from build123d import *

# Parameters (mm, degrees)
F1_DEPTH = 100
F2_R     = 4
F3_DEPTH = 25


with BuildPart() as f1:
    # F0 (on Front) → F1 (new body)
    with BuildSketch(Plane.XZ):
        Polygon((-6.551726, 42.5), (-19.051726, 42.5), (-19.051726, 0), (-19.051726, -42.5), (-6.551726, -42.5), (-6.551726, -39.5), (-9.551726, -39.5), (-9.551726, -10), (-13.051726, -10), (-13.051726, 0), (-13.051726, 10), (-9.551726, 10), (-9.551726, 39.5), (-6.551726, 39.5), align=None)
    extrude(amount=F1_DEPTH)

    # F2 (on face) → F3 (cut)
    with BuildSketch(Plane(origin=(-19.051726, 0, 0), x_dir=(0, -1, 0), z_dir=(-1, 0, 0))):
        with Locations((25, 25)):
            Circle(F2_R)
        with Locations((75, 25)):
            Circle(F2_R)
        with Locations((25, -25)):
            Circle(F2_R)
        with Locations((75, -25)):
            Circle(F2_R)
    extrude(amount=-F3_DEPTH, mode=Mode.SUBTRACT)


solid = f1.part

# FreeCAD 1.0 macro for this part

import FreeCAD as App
import Part
import Sketcher

V = App.Vector
Q = App.Units.Quantity

doc = App.newDocument("Part")
params = doc.addObject("Spreadsheet::Sheet", "Params")
for row, (alias, value) in enumerate([
    ("sketch1_width", "3 mm"),
    ("sketch1_height", "85 mm"),
    ("sketch1_height2", "20 mm"),
    ("sketch1_width2", "12.5 mm"),
    ("sketch1_width3", "3.5 mm"),
    ("pad1_length", "100 mm"),
    ("sketch2_diameter", "8 mm"),
    ("pocket1_length", "25 mm"),
], start=1):
    params.set(f"A{row}", alias)
    params.set(f"B{row}", "=" + value)
    params.setAlias(f"B{row}", alias)

body = doc.addObject("PartDesign::Body", "Body")

sketch1 = body.newObject("Sketcher::SketchObject", "Sketch")
sketch1.AttachmentSupport = (doc.getObject("XZ_Plane"), [""])
sketch1.MapMode = "FlatFace"
sketch1.addGeometry([
    Part.LineSegment(V(-6.6, 42.5, 0), V(-19.1, 42.5, 0)),
    Part.LineSegment(V(-19.1, 42.5, 0), V(-19.1, -42.5, 0)),
    Part.LineSegment(V(-19.1, -42.5, 0), V(-6.6, -42.5, 0)),
    Part.LineSegment(V(-6.6, -42.5, 0), V(-6.6, -39.5, 0)),
    Part.LineSegment(V(-6.6, -39.5, 0), V(-9.6, -39.5, 0)),
    Part.LineSegment(V(-9.6, -39.5, 0), V(-9.6, -10, 0)),
    Part.LineSegment(V(-9.6, -10, 0), V(-13.1, -10, 0)),
    Part.LineSegment(V(-13.1, -10, 0), V(-13.1, 10, 0)),
    Part.LineSegment(V(-13.1, 10, 0), V(-9.6, 10, 0)),
    Part.LineSegment(V(-9.6, 10, 0), V(-9.6, 39.5, 0)),
    Part.LineSegment(V(-9.6, 39.5, 0), V(-6.6, 39.5, 0)),
    Part.LineSegment(V(-6.6, 39.5, 0), V(-6.6, 42.5, 0)),
], False)
sketch1.addConstraint([
    Sketcher.Constraint("Coincident", 0, 2, 1, 1),
    Sketcher.Constraint("Coincident", 1, 2, 2, 1),
    Sketcher.Constraint("Coincident", 2, 2, 3, 1),
    Sketcher.Constraint("Coincident", 3, 2, 4, 1),
    Sketcher.Constraint("Coincident", 4, 2, 5, 1),
    Sketcher.Constraint("Coincident", 5, 2, 6, 1),
    Sketcher.Constraint("Coincident", 6, 2, 7, 1),
    Sketcher.Constraint("Coincident", 7, 2, 8, 1),
    Sketcher.Constraint("Coincident", 8, 2, 9, 1),
    Sketcher.Constraint("Coincident", 9, 2, 10, 1),
    Sketcher.Constraint("Coincident", 10, 2, 11, 1),
    Sketcher.Constraint("Coincident", 11, 2, 0, 1),
    Sketcher.Constraint("Horizontal", 0),
    Sketcher.Constraint("Vertical", 1),
    Sketcher.Constraint("Horizontal", 2),
    Sketcher.Constraint("Vertical", 3),
    Sketcher.Constraint("Horizontal", 4),
    Sketcher.Constraint("Vertical", 5),
    Sketcher.Constraint("Horizontal", 6),
    Sketcher.Constraint("Vertical", 7),
    Sketcher.Constraint("Horizontal", 8),
    Sketcher.Constraint("Vertical", 9),
    Sketcher.Constraint("Horizontal", 10),
    Sketcher.Constraint("Vertical", 11),
    Sketcher.Constraint("Symmetric", 5, 2, 8, 2, -1),
    Sketcher.Constraint("Symmetric", 3, 2, 10, 2, -1),
    Sketcher.Constraint("Equal", 10, 3),
    Sketcher.Constraint("Equal", 3, 11),
    Sketcher.Constraint("DistanceX", 4, 2, 4, 1, Q("3 mm")),
    Sketcher.Constraint("DistanceY", 1, 2, 1, 1, Q("85 mm")),
    Sketcher.Constraint("DistanceY", 7, 1, 7, 2, Q("20 mm")),
    Sketcher.Constraint("DistanceX", 0, 2, 0, 1, Q("12.5 mm")),
    Sketcher.Constraint("DistanceX", 6, 2, 6, 1, Q("3.5 mm")),
    Sketcher.Constraint("DistanceX", 0, 2, -1, 1, Q("19.051726 mm")),
])
sketch1.setExpression("Constraints[28]", "Params.sketch1_width")
sketch1.setExpression("Constraints[29]", "Params.sketch1_height")
sketch1.setExpression("Constraints[30]", "Params.sketch1_height2")
sketch1.setExpression("Constraints[31]", "Params.sketch1_width2")
sketch1.setExpression("Constraints[32]", "Params.sketch1_width3")
pad1 = body.newObject("PartDesign::Pad", "Pad")
pad1.Profile = sketch1
pad1.setExpression("Length", "Params.pad1_length")

sketch2 = body.newObject("Sketcher::SketchObject", "Sketch001")
sketch2.AttachmentSupport = (doc.getObject("YZ_Plane"), [""])
sketch2.MapMode = "FlatFace"
sketch2.AttachmentOffset = App.Placement(V(0, 0, -19.051726), App.Rotation())
sketch2.addGeometry([
    Part.Circle(V(-25, 25, 0), V(0, 0, 1), 4),
    Part.Circle(V(-75, 25, 0), V(0, 0, 1), 4),
    Part.Circle(V(-25, -25, 0), V(0, 0, 1), 4),
    Part.Circle(V(-75, -25, 0), V(0, 0, 1), 4),
], False)
sketch2.addConstraint([
    Sketcher.Constraint("Equal", 0, 1),
    Sketcher.Constraint("Equal", 1, 2),
    Sketcher.Constraint("Equal", 2, 3),
    Sketcher.Constraint("Symmetric", 0, 3, 2, 3, -1),
    Sketcher.Constraint("Symmetric", 1, 3, 3, 3, -1),
    Sketcher.Constraint("Horizontal", 0, 3, 1, 3),
    Sketcher.Constraint("Diameter", 0, Q("8 mm")),
    Sketcher.Constraint("DistanceX", 0, 3, -1, 1, Q("25 mm")),
    Sketcher.Constraint("DistanceY", -1, 1, 0, 3, Q("25 mm")),
    Sketcher.Constraint("DistanceX", 1, 3, -1, 1, Q("75 mm")),
])
sketch2.setExpression("Constraints[6]", "Params.sketch2_diameter")
pocket1 = body.newObject("PartDesign::Pocket", "Pocket")
pocket1.Profile = sketch2
pocket1.setExpression("Length", "Params.pocket1_length")
pocket1.Reversed = True

doc.recompute()
